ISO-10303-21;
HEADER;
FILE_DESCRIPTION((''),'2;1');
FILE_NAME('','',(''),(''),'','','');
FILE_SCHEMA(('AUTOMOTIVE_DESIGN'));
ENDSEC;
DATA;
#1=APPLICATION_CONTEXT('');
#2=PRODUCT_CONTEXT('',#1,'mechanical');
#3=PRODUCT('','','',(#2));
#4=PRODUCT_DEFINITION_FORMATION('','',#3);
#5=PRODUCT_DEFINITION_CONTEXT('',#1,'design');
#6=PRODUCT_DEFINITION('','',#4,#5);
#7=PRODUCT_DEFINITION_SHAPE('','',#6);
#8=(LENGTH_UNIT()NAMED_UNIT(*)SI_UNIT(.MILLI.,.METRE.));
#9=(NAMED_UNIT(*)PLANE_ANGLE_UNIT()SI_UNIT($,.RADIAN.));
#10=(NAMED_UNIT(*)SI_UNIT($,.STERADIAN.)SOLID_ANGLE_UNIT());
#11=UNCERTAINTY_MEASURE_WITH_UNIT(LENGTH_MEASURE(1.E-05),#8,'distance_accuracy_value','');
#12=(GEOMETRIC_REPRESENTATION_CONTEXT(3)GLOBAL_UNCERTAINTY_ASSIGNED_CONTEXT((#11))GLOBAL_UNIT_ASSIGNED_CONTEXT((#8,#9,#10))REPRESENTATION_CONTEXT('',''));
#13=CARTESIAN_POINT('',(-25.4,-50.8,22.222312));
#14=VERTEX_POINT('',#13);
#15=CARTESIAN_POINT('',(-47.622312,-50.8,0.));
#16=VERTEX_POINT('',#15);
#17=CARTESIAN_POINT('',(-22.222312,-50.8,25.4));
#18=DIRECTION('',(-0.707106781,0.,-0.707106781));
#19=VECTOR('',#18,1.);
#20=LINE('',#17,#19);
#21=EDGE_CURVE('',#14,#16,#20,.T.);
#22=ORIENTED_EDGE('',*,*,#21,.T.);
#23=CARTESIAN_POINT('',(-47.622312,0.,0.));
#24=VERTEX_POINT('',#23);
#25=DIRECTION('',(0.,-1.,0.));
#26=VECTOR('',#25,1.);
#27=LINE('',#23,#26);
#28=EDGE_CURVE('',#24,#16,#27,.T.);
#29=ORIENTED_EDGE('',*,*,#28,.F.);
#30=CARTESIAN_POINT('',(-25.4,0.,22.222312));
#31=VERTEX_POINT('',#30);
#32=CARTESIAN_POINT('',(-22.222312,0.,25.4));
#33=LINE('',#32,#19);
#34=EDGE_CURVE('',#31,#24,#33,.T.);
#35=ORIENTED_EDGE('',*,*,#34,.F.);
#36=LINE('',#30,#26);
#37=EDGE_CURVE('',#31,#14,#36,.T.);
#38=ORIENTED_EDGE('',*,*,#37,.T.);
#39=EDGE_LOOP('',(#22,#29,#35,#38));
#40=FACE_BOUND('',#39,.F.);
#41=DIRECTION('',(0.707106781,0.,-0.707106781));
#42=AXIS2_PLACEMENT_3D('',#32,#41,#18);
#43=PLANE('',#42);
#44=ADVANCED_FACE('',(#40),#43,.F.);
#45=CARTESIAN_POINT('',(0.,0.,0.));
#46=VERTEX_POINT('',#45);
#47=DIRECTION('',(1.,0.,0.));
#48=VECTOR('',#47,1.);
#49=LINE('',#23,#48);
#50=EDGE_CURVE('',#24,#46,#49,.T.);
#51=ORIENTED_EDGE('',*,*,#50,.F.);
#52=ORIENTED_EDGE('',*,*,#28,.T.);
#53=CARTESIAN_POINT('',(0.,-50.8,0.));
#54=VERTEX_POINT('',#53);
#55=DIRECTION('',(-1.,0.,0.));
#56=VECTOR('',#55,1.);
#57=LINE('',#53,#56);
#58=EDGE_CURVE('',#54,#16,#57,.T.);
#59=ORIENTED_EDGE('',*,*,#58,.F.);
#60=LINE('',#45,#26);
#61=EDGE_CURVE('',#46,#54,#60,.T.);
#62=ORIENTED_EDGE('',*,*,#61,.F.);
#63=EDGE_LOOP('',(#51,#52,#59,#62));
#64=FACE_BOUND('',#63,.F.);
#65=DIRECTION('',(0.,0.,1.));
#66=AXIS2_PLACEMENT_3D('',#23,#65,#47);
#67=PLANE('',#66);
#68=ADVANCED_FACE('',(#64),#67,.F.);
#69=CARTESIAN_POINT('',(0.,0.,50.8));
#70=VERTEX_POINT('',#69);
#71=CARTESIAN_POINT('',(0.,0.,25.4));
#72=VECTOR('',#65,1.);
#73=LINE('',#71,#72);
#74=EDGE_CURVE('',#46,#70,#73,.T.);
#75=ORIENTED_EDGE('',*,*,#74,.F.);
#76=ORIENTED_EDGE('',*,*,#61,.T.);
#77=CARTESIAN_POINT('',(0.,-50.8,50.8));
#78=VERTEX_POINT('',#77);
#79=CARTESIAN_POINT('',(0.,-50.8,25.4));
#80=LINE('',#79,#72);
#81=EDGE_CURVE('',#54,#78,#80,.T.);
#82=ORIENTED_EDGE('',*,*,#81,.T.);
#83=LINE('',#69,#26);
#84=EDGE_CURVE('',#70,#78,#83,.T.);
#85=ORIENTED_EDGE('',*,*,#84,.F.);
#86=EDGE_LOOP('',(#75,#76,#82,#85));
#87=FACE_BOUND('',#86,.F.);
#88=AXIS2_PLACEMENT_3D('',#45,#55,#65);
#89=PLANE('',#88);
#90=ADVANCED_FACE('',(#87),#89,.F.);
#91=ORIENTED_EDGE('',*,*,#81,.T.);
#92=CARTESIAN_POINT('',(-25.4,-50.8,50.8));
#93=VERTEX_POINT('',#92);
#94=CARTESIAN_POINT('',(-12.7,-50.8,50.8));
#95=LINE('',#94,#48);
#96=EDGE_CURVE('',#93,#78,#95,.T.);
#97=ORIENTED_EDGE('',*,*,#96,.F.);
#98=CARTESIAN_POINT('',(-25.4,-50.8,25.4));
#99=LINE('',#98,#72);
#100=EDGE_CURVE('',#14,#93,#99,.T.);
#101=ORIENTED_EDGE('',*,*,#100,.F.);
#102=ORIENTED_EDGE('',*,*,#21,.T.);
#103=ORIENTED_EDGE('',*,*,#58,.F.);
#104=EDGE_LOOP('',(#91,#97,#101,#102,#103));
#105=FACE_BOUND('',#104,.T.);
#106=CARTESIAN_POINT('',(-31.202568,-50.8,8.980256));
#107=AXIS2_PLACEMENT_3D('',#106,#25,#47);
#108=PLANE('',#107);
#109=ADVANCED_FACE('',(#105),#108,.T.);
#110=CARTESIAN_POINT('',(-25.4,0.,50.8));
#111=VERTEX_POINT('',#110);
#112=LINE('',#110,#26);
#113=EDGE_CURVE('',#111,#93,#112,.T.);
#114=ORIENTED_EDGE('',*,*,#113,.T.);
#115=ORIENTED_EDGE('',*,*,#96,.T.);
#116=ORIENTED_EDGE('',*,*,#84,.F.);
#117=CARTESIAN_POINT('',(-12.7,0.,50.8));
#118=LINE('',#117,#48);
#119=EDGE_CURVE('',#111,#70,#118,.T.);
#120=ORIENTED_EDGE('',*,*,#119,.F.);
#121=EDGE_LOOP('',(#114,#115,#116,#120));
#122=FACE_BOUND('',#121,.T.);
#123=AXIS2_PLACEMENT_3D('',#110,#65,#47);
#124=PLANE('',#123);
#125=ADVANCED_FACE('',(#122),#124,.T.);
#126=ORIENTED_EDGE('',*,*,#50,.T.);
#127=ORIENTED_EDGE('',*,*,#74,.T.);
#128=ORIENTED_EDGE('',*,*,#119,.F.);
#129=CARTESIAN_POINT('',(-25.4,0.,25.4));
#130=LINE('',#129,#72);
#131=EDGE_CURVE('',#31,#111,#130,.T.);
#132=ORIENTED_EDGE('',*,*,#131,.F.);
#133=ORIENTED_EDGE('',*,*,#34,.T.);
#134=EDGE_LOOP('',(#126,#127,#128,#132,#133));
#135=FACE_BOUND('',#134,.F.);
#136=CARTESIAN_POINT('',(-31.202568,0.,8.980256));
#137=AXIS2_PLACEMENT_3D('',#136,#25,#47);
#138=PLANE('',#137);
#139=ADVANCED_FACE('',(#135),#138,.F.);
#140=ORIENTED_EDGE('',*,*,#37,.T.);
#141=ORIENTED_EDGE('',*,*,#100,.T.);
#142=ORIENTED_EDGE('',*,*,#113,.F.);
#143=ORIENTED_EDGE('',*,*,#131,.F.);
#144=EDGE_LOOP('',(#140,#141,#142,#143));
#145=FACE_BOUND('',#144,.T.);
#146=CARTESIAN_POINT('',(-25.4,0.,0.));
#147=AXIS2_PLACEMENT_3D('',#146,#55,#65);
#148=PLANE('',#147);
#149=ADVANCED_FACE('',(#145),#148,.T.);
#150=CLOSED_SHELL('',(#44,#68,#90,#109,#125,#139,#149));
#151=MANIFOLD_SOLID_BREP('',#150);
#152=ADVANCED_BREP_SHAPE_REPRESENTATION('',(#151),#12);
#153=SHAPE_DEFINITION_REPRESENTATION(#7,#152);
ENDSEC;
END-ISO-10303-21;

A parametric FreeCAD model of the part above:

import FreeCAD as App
import Part
import Sketcher
Q = App.Units.Quantity


def add_polygon(sketch, points):
    """Adds a closed chain of lines whose ends are joined by coincident constraints."""
    first, n = sketch.GeometryCount, len(points)
    for a, b in zip(points, points[1:] + points[:1]):
        sketch.addGeometry(Part.LineSegment(App.Vector(*a, 0), App.Vector(*b, 0)), False)
    for i in range(n):
        sketch.addConstraint(Sketcher.Constraint("Coincident", first + i, 2, first + (i + 1) % n, 1))

doc = App.newDocument("Part")
body = doc.addObject("PartDesign::Body", "Body")

sketch1 = doc.addObject("Sketcher::SketchObject", "Sketch")
body.addObject(sketch1)
sketch1.AttachmentSupport = (doc.XZ_Plane, [""])
sketch1.MapMode = "FlatFace"
add_polygon(sketch1, [(-25, 51), (-25, 0), (0, 0), (0, 51)])
sketch1.addConstraint([
    Sketcher.Constraint("Vertical", 0),
    Sketcher.Constraint("Horizontal", 1),
    Sketcher.Constraint("Vertical", 2),
    Sketcher.Constraint("Horizontal", 3),
    Sketcher.Constraint("Coincident", 1, 2, -1, 1),
    Sketcher.Constraint("DistanceX", 1, 1, 1, 2, Q("1 in")),
    Sketcher.Constraint("DistanceY", 0, 2, 0, 1, Q("2 in")),
])
pad1 = doc.addObject("PartDesign::Pad", "Pad")
body.addObject(pad1)
pad1.Profile = sketch1
pad1.Length = Q("2 in")

sketch2 = doc.addObject("Sketcher::SketchObject", "Sketch001")
body.addObject(sketch2)
sketch2.AttachmentSupport = (doc.XZ_Plane, [""])
sketch2.MapMode = "FlatFace"
add_polygon(sketch2, [(-48, 0), (-22, 0), (-22, 25)])
sketch2.addConstraint([
    Sketcher.Constraint("Horizontal", 0),
    Sketcher.Constraint("Vertical", 1),
    Sketcher.Constraint("PointOnObject", 0, 2, -1),
    Sketcher.Constraint("Equal", 0, 1),
    Sketcher.Constraint("DistanceX", 0, 1, 0, 2, Q("1 in")),
    Sketcher.Constraint("DistanceX", 0, 2, -1, 1, Q("22.222312 mm")),
])
pad2 = doc.addObject("PartDesign::Pad", "Pad001")
body.addObject(pad2)
pad2.Profile = sketch2
pad2.Length = Q("2 in")

doc.recompute()
